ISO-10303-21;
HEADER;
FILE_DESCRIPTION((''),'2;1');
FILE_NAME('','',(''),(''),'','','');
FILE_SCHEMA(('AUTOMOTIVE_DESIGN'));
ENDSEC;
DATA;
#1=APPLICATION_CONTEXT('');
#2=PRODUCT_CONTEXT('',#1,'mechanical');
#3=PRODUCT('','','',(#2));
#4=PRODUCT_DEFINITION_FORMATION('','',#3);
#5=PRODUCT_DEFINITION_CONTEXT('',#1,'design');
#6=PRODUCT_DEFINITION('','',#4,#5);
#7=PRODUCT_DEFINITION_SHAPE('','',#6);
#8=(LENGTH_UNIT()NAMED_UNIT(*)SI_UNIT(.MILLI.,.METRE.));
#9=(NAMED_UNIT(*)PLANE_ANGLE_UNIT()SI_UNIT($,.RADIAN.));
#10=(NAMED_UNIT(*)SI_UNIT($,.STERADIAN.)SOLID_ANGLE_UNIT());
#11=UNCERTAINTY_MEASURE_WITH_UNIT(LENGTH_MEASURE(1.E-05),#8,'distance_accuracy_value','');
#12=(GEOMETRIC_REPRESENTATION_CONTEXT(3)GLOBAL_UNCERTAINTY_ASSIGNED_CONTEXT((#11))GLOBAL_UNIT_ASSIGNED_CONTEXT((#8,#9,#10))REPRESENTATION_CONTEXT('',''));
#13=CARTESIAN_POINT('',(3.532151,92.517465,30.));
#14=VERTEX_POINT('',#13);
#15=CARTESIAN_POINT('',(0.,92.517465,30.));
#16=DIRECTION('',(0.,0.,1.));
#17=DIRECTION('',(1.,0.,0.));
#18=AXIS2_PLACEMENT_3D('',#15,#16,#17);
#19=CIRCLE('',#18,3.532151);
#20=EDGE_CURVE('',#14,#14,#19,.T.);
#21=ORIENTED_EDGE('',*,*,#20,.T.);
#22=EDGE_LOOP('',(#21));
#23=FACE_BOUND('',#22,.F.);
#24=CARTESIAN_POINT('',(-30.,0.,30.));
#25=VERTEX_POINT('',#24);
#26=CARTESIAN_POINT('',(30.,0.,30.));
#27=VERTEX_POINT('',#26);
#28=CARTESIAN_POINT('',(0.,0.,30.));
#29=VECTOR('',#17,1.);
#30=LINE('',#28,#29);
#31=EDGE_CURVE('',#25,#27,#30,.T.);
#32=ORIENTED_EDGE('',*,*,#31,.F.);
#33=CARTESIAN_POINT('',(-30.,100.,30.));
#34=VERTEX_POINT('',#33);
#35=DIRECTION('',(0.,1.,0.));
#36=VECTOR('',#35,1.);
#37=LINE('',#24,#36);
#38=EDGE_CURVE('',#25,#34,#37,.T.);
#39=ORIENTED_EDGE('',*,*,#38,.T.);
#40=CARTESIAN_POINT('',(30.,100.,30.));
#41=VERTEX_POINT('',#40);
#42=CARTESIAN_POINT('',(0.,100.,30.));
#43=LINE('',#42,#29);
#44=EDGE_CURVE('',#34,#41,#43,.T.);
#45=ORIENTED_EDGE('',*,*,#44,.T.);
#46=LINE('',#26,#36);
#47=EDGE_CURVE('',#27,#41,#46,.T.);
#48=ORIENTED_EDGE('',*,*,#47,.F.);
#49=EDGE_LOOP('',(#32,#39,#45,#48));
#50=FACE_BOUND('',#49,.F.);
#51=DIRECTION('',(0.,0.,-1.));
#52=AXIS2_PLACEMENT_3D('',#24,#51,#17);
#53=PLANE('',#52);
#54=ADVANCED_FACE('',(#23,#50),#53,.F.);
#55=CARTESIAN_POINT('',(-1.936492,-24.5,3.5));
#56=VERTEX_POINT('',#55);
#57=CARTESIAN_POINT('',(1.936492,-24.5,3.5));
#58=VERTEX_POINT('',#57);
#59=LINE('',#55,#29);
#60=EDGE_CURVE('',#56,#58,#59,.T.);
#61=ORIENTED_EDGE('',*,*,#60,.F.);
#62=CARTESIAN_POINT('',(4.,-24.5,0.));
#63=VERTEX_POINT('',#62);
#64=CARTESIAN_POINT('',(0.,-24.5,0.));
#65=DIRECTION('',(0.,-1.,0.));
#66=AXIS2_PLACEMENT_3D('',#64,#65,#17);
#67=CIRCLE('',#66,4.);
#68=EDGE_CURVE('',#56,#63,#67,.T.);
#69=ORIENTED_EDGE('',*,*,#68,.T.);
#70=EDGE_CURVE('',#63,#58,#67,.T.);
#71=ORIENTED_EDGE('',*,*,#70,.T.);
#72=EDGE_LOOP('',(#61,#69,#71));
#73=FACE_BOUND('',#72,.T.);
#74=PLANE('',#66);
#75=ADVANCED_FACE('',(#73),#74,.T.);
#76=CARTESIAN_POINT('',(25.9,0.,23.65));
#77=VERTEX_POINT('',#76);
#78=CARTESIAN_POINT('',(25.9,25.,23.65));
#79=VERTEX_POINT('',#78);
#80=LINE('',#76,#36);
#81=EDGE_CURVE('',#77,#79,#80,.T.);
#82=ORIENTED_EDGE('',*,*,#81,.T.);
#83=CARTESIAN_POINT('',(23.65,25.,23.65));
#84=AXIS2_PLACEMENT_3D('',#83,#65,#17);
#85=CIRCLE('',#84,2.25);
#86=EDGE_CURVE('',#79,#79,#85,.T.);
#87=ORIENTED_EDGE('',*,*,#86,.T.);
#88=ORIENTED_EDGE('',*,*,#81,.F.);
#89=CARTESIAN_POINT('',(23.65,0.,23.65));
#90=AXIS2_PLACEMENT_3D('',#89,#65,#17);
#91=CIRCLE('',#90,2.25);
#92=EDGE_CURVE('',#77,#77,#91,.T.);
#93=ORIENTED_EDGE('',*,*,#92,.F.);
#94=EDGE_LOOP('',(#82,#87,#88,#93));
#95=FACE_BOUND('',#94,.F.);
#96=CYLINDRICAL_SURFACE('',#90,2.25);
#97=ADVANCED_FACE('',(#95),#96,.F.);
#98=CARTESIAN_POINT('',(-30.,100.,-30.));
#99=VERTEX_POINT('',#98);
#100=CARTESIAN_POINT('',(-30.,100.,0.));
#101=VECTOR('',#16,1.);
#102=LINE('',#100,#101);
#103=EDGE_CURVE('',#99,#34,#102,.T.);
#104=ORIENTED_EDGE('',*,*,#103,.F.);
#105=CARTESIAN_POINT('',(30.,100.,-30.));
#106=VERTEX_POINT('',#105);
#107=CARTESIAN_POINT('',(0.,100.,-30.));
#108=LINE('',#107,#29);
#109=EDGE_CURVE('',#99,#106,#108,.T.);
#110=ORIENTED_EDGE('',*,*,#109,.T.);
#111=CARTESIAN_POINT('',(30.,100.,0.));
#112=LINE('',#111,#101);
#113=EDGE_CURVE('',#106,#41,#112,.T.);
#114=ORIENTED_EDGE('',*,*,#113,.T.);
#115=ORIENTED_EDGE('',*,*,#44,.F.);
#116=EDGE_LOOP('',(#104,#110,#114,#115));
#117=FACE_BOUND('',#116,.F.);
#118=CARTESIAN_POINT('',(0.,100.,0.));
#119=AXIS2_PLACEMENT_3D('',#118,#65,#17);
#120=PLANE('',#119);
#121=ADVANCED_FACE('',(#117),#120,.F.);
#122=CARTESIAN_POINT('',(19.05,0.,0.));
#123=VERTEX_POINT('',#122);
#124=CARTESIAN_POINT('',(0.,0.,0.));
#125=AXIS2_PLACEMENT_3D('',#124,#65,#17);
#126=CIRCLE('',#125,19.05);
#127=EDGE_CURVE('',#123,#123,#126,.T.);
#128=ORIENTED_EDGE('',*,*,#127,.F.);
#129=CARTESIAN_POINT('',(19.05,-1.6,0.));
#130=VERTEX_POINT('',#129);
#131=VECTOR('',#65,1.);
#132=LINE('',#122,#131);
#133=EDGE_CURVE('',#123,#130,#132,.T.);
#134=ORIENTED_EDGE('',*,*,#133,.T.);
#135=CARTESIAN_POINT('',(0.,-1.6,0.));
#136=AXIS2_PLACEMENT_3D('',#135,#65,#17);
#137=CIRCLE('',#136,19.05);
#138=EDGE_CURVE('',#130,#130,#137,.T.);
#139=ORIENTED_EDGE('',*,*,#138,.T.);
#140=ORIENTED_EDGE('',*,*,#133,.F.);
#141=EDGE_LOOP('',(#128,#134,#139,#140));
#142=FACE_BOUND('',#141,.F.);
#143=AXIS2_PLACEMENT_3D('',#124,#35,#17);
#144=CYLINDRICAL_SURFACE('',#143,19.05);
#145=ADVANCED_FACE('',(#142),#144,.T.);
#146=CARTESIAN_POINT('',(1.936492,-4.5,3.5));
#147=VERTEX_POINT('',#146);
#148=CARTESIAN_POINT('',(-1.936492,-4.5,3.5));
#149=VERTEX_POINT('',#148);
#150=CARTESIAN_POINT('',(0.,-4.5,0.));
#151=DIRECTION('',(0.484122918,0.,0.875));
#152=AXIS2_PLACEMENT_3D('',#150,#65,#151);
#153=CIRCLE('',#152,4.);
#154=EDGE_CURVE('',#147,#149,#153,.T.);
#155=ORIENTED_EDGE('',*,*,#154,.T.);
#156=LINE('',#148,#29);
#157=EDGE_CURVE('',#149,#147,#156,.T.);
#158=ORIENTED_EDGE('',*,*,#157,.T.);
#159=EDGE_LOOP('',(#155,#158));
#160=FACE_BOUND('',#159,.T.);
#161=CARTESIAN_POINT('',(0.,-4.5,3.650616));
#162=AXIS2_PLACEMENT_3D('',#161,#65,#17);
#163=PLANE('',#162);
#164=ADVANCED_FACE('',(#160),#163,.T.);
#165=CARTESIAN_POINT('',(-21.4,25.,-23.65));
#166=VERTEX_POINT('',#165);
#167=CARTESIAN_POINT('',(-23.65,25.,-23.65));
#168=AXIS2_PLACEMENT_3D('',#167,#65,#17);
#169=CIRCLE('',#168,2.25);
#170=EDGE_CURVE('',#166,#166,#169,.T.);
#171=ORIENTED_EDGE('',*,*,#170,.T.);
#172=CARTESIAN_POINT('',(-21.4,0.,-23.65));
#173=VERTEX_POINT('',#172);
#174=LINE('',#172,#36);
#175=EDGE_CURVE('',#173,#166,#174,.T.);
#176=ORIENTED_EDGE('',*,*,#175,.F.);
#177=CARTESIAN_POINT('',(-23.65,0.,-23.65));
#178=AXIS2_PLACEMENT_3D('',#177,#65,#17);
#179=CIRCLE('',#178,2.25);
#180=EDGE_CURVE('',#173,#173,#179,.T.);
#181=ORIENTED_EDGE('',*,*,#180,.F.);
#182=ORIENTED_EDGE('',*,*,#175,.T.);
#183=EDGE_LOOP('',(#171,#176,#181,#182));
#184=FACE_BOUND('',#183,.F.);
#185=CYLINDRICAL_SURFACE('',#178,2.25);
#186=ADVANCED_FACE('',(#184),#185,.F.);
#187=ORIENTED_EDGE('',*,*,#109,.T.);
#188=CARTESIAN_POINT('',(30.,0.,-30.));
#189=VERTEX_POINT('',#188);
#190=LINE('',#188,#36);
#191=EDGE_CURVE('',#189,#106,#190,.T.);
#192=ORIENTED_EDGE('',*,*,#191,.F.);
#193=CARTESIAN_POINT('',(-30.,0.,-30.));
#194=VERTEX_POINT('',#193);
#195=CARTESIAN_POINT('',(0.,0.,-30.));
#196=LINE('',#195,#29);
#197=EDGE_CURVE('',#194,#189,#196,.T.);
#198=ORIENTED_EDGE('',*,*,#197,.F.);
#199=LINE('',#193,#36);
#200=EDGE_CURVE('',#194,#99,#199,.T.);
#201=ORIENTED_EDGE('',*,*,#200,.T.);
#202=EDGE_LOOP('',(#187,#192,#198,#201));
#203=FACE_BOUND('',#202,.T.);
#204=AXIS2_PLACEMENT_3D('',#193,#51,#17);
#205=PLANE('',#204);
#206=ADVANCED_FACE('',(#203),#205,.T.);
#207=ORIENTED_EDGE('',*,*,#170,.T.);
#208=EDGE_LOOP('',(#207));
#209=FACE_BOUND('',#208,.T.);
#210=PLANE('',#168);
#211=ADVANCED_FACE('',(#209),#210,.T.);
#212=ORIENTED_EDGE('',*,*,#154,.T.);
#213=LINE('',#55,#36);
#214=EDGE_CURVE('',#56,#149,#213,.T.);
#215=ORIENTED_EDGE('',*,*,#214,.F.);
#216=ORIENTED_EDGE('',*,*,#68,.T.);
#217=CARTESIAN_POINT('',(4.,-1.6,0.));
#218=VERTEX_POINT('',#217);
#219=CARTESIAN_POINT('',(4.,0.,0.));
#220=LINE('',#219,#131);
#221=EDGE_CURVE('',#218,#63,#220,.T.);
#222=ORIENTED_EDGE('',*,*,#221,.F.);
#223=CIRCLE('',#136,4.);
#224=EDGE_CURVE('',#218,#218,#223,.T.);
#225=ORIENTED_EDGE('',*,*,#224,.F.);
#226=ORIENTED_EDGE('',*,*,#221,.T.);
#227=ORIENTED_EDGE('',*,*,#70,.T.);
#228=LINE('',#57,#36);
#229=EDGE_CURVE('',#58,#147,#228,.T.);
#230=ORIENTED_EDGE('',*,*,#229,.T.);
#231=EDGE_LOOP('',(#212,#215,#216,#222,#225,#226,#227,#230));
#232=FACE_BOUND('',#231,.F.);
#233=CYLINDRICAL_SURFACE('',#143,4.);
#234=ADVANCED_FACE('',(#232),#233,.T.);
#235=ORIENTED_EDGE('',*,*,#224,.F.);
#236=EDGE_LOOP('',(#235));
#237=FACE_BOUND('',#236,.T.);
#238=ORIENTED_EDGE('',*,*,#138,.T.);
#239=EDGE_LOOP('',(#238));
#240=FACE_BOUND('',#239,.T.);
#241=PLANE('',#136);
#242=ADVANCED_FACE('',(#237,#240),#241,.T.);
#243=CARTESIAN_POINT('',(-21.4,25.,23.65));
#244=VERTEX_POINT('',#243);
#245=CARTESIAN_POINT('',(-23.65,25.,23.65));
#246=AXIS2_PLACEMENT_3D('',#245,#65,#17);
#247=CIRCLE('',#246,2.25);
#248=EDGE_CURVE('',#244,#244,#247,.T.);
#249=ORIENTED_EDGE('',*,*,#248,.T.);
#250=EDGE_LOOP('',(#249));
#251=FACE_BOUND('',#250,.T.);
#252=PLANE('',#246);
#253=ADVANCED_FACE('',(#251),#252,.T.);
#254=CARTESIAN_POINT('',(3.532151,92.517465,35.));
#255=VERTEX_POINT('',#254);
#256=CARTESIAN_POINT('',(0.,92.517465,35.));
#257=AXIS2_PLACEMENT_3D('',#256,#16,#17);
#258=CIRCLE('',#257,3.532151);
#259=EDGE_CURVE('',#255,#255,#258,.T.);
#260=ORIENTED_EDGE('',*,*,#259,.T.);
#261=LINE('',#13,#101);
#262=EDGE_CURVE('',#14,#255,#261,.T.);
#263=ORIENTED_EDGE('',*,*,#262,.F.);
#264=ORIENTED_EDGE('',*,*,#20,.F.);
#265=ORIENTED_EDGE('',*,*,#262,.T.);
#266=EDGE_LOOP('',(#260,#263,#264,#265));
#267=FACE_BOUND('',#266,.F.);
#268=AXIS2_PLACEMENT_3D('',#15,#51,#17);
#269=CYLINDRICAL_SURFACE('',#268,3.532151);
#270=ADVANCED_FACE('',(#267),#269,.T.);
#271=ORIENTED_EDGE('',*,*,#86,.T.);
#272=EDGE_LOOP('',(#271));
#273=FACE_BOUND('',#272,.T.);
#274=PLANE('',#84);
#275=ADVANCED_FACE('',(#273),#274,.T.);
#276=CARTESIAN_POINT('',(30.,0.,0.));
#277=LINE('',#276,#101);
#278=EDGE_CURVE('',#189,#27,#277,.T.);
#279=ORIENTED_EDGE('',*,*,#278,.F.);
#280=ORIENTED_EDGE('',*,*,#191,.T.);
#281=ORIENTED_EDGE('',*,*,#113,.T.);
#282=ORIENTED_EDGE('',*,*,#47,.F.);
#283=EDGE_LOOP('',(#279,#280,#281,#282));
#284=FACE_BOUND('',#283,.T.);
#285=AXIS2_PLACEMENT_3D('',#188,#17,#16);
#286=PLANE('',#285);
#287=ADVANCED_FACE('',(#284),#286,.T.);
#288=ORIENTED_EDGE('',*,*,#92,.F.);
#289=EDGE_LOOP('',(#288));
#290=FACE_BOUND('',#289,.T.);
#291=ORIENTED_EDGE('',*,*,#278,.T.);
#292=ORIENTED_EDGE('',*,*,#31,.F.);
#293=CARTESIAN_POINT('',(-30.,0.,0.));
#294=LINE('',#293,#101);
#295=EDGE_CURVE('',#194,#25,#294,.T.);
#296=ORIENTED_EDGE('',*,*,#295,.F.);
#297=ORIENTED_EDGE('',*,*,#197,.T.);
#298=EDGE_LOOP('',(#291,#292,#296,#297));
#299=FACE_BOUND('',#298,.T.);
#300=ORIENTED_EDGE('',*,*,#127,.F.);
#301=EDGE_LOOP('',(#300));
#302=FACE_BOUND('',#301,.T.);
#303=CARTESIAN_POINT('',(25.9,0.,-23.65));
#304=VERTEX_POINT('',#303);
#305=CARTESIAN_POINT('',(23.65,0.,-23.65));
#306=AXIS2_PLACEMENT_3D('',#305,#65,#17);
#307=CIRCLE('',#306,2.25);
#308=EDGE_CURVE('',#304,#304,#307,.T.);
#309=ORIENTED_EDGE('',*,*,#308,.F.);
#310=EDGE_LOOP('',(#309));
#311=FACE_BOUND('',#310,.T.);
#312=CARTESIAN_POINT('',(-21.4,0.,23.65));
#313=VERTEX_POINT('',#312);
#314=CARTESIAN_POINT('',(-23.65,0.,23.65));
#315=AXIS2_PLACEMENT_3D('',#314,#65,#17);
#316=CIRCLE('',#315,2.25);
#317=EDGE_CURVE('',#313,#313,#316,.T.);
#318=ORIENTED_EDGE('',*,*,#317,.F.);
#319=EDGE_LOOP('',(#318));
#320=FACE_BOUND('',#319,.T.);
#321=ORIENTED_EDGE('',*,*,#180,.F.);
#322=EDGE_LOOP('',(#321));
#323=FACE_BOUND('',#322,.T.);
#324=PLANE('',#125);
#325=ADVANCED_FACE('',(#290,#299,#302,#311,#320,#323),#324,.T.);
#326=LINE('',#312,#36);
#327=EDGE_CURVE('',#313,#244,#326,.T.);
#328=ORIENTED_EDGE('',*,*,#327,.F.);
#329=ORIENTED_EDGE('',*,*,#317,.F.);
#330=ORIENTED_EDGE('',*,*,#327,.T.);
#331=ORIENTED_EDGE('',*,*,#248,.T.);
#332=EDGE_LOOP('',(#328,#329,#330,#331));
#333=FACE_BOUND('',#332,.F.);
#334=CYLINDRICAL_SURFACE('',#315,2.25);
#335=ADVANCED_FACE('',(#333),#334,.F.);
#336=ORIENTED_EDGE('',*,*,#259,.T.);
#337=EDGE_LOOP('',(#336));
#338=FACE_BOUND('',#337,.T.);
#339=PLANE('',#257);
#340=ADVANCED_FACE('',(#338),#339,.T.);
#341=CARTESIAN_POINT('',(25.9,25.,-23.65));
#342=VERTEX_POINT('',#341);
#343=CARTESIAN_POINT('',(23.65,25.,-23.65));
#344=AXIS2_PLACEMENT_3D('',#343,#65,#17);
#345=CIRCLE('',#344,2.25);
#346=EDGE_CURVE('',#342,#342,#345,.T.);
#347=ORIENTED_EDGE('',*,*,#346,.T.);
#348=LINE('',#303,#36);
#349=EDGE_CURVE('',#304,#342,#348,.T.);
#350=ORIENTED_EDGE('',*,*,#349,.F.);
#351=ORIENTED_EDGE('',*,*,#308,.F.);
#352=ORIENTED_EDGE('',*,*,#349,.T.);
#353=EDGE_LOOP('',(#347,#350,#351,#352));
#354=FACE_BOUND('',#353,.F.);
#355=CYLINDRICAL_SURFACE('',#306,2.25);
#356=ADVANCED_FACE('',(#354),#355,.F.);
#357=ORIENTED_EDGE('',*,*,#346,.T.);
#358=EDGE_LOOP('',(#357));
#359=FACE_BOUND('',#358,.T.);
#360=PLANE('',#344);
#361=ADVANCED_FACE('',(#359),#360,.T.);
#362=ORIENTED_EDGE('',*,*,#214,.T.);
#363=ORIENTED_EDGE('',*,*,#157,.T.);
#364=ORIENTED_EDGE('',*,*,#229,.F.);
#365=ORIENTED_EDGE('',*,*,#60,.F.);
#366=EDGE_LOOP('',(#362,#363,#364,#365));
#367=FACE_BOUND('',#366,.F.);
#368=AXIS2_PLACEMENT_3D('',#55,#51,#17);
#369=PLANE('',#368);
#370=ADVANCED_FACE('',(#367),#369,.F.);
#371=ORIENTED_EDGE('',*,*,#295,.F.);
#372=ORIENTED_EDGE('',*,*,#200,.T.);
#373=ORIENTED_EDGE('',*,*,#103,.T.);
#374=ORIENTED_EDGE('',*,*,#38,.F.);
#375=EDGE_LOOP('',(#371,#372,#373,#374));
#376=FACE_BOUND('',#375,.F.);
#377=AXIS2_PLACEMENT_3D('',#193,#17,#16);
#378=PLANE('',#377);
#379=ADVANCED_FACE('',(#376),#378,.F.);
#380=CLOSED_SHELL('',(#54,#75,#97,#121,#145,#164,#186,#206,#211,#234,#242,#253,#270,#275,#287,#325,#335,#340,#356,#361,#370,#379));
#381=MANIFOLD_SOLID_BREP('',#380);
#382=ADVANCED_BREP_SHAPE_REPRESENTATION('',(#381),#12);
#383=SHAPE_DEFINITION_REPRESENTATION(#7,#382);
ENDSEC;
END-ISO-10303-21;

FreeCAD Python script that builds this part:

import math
import FreeCAD as App
import Part
import Sketcher


def add_polygon(sketch, points):
    """Adds a closed chain of lines whose ends are joined by coincident constraints."""
    first, n = sketch.GeometryCount, len(points)
    for a, b in zip(points, points[1:] + points[:1]):
        sketch.addGeometry(Part.LineSegment(App.Vector(*a, 0), App.Vector(*b, 0)), False)
    for i in range(n):
        sketch.addConstraint(Sketcher.Constraint("Coincident", first + i, 2, first + (i + 1) % n, 1))

doc = App.newDocument("Part")
body = doc.addObject("PartDesign::Body", "Body")

# Sketch on XZ plane
sketch1 = doc.addObject("Sketcher::SketchObject", "Sketch")
body.addObject(sketch1)
sketch1.AttachmentSupport = (doc.XZ_Plane, [""])
sketch1.MapMode = "FlatFace"
add_polygon(sketch1, [(-30, 30), (-30, -30), (30, -30), (30, 30)])  # lines 0-3
sketch1.addConstraint([
    Sketcher.Constraint("Vertical", 0),
    Sketcher.Constraint("Horizontal", 1),
    Sketcher.Constraint("Vertical", 2),
    Sketcher.Constraint("Horizontal", 3),
    Sketcher.Constraint("Symmetric", 0, 2, 2, 2, -1, 1),
    Sketcher.Constraint("Equal", 3, 0),
    Sketcher.Constraint("DistanceX", 1, 1, 1, 2, 60.0),
])
pad1 = doc.addObject("PartDesign::Pad", "Pad")
body.addObject(pad1)
pad1.Profile = sketch1
pad1.Length = 100
pad1.Reversed = True

# Sketch on XZ plane
sketch2 = doc.addObject("Sketcher::SketchObject", "Sketch001")
body.addObject(sketch2)
sketch2.AttachmentSupport = (doc.XZ_Plane, [""])
sketch2.MapMode = "FlatFace"
sketch2.addGeometry(Part.Circle(App.Vector(0, 0, 0), App.Vector(0, 0, 1), 4), False)
sketch2.addConstraint([
    Sketcher.Constraint("Coincident", 0, 3, -1, 1),
    Sketcher.Constraint("Diameter", 0, 8.0),
])
pad2 = doc.addObject("PartDesign::Pad", "Pad001")
body.addObject(pad2)
pad2.Profile = sketch2
pad2.Length = 24.5

# Sketch on XZ plane
sketch3 = doc.addObject("Sketcher::SketchObject", "Sketch002")
body.addObject(sketch3)
sketch3.AttachmentSupport = (doc.XZ_Plane, [""])
sketch3.MapMode = "FlatFace"
sketch3.AttachmentOffset = App.Placement(App.Vector(0, 0, 24.5), App.Rotation())
sketch3.addGeometry([
    Part.ArcOfCircle(Part.Circle(App.Vector(0, 0, 0), App.Vector(0, 0, 1), 4), math.radians(61), math.radians(119)),
    Part.LineSegment(App.Vector(-1.9, 3.5, 0), App.Vector(1.9, 3.5, 0)),
], False)
sketch3.addConstraint([
    Sketcher.Constraint("Coincident", 0, 1, 1, 2),
    Sketcher.Constraint("Coincident", 1, 1, 0, 2),
    Sketcher.Constraint("Horizontal", 1),
    Sketcher.Constraint("Coincident", 0, 3, -1, 1),
    Sketcher.Constraint("Radius", 0, 4.0),
    Sketcher.Constraint("DistanceY", -1, 1, 0, 1, 3.5),
])
pocket1 = doc.addObject("PartDesign::Pocket", "Pocket")
body.addObject(pocket1)
pocket1.Profile = sketch3
pocket1.Length = 20

# Sketch on XZ plane
sketch4 = doc.addObject("Sketcher::SketchObject", "Sketch003")
body.addObject(sketch4)
sketch4.AttachmentSupport = (doc.XZ_Plane, [""])
sketch4.MapMode = "FlatFace"
sketch4.addGeometry([
    Part.Circle(App.Vector(0, 0, 0), App.Vector(0, 0, 1), 19.1),
    Part.Circle(App.Vector(0, 0, 0), App.Vector(0, 0, 1), 4),
], False)
sketch4.addConstraint([
    Sketcher.Constraint("Coincident", 0, 3, -1, 1),
    Sketcher.Constraint("Coincident", 1, 3, -1, 1),
    Sketcher.Constraint("Diameter", 1, 8.0),
    Sketcher.Constraint("Diameter", 0, 38.1),
])
pad3 = doc.addObject("PartDesign::Pad", "Pad002")
body.addObject(pad3)
pad3.Profile = sketch4
pad3.Length = 1.6

# Sketch on XZ plane
sketch5 = doc.addObject("Sketcher::SketchObject", "Sketch004")
body.addObject(sketch5)
sketch5.AttachmentSupport = (doc.XZ_Plane, [""])
sketch5.MapMode = "FlatFace"
sketch5.addGeometry([
    Part.Circle(App.Vector(-23.6, 23.6, 0), App.Vector(0, 0, 1), 2.2),
    Part.Circle(App.Vector(23.6, 23.6, 0), App.Vector(0, 0, 1), 2.2),
    Part.Circle(App.Vector(23.6, -23.6, 0), App.Vector(0, 0, 1), 2.2),
    Part.Circle(App.Vector(-23.6, -23.6, 0), App.Vector(0, 0, 1), 2.2),
], False)
sketch5.addConstraint([
    Sketcher.Constraint("Equal", 0, 1),
    Sketcher.Constraint("Equal", 1, 2),
    Sketcher.Constraint("Equal", 2, 3),
    Sketcher.Constraint("Symmetric", 0, 3, 2, 3, -1, 1),
    Sketcher.Constraint("Symmetric", 1, 3, 3, 3, -1, 1),
    Sketcher.Constraint("Symmetric", 0, 3, 1, 3, -2),
    Sketcher.Constraint("Diameter", 0, 4.5),
    Sketcher.Constraint("DistanceX", 0, 3, 1, 3, 47.3),
    Sketcher.Constraint("DistanceY", 2, 3, 1, 3, 47.3),
])
pocket2 = doc.addObject("PartDesign::Pocket", "Pocket001")
body.addObject(pocket2)
pocket2.Profile = sketch5
pocket2.Length = 25

# Sketch on XY plane
sketch6 = doc.addObject("Sketcher::SketchObject", "Sketch005")
body.addObject(sketch6)
sketch6.AttachmentSupport = (doc.XY_Plane, [""])
sketch6.MapMode = "FlatFace"
sketch6.AttachmentOffset = App.Placement(App.Vector(0, 0, 30), App.Rotation())
sketch6.addGeometry(Part.Circle(App.Vector(0, 92.5, 0), App.Vector(0, 0, 1), 3.5), False)
sketch6.addConstraint([
    Sketcher.Constraint("PointOnObject", 0, 3, -2),
    Sketcher.Constraint("Diameter", 0, 7.064302),
    Sketcher.Constraint("DistanceY", -1, 1, 0, 3, 92.517465),
])
pad4 = doc.addObject("PartDesign::Pad", "Pad003")
body.addObject(pad4)
pad4.Profile = sketch6
pad4.Length = 5

doc.recompute()
